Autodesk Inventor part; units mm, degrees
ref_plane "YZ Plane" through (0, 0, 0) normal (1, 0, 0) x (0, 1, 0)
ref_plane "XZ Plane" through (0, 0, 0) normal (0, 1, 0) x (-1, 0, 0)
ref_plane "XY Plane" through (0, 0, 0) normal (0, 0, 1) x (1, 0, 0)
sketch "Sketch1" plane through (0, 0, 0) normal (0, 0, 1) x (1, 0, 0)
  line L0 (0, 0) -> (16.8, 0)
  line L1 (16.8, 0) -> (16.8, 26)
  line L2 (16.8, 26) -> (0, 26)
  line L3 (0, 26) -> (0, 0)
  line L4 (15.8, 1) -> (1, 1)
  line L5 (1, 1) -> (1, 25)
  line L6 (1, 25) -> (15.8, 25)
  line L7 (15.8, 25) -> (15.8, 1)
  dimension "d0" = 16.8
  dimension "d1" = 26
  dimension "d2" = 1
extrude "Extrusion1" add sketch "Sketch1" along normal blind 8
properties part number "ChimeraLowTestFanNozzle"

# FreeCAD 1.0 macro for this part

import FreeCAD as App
import Part
import Sketcher

V = App.Vector


def add_polygon(sketch, points):
    """Adds a closed chain of lines whose ends are joined by coincident constraints."""
    first, n = sketch.GeometryCount, len(points)
    for a, b in zip(points, points[1:] + points[:1]):
        sketch.addGeometry(Part.LineSegment(App.Vector(*a, 0), App.Vector(*b, 0)), False)
    for i in range(n):
        sketch.addConstraint(Sketcher.Constraint("Coincident", first + i, 2, first + (i + 1) % n, 1))

doc = App.newDocument("Part")
body = doc.addObject("PartDesign::Body", "Body")

# Sketch on XY plane
sketch1 = body.newObject("Sketcher::SketchObject", "Sketch")
sketch1.AttachmentSupport = (doc.getObject("XY_Plane"), [""])
sketch1.MapMode = "FlatFace"
add_polygon(sketch1, [(0, 26), (0, 0), (17, 0), (17, 26)])  # lines 0-3
add_polygon(sketch1, [(16, 25), (16, 1), (1, 1), (1, 25)])  # lines 4-7
sketch1.addConstraint([
    Sketcher.Constraint("Vertical", 0),
    Sketcher.Constraint("Horizontal", 1),
    Sketcher.Constraint("Vertical", 2),
    Sketcher.Constraint("Horizontal", 3),
    Sketcher.Constraint("Vertical", 4),
    Sketcher.Constraint("Horizontal", 5),
    Sketcher.Constraint("Vertical", 6),
    Sketcher.Constraint("Horizontal", 7),
    Sketcher.Constraint("Coincident", 0, 2, -1, 1),
    Sketcher.Constraint("DistanceY", 0, 2, 0, 1, 26.0),
    Sketcher.Constraint("DistanceX", 1, 1, 1, 2, 16.8),
    Sketcher.Constraint("DistanceY", -1, 1, 4, 2, 1.0),
    Sketcher.Constraint("DistanceX", -1, 1, 5, 2, 1.0),
    Sketcher.Constraint("DistanceX", 4, 2, 1, 2, 1.0),
    Sketcher.Constraint("DistanceY", 6, 2, 3, 2, 1.0),
])
pad1 = body.newObject("PartDesign::Pad", "Pad")
pad1.Profile = sketch1
pad1.Length = 8

doc.recompute()
